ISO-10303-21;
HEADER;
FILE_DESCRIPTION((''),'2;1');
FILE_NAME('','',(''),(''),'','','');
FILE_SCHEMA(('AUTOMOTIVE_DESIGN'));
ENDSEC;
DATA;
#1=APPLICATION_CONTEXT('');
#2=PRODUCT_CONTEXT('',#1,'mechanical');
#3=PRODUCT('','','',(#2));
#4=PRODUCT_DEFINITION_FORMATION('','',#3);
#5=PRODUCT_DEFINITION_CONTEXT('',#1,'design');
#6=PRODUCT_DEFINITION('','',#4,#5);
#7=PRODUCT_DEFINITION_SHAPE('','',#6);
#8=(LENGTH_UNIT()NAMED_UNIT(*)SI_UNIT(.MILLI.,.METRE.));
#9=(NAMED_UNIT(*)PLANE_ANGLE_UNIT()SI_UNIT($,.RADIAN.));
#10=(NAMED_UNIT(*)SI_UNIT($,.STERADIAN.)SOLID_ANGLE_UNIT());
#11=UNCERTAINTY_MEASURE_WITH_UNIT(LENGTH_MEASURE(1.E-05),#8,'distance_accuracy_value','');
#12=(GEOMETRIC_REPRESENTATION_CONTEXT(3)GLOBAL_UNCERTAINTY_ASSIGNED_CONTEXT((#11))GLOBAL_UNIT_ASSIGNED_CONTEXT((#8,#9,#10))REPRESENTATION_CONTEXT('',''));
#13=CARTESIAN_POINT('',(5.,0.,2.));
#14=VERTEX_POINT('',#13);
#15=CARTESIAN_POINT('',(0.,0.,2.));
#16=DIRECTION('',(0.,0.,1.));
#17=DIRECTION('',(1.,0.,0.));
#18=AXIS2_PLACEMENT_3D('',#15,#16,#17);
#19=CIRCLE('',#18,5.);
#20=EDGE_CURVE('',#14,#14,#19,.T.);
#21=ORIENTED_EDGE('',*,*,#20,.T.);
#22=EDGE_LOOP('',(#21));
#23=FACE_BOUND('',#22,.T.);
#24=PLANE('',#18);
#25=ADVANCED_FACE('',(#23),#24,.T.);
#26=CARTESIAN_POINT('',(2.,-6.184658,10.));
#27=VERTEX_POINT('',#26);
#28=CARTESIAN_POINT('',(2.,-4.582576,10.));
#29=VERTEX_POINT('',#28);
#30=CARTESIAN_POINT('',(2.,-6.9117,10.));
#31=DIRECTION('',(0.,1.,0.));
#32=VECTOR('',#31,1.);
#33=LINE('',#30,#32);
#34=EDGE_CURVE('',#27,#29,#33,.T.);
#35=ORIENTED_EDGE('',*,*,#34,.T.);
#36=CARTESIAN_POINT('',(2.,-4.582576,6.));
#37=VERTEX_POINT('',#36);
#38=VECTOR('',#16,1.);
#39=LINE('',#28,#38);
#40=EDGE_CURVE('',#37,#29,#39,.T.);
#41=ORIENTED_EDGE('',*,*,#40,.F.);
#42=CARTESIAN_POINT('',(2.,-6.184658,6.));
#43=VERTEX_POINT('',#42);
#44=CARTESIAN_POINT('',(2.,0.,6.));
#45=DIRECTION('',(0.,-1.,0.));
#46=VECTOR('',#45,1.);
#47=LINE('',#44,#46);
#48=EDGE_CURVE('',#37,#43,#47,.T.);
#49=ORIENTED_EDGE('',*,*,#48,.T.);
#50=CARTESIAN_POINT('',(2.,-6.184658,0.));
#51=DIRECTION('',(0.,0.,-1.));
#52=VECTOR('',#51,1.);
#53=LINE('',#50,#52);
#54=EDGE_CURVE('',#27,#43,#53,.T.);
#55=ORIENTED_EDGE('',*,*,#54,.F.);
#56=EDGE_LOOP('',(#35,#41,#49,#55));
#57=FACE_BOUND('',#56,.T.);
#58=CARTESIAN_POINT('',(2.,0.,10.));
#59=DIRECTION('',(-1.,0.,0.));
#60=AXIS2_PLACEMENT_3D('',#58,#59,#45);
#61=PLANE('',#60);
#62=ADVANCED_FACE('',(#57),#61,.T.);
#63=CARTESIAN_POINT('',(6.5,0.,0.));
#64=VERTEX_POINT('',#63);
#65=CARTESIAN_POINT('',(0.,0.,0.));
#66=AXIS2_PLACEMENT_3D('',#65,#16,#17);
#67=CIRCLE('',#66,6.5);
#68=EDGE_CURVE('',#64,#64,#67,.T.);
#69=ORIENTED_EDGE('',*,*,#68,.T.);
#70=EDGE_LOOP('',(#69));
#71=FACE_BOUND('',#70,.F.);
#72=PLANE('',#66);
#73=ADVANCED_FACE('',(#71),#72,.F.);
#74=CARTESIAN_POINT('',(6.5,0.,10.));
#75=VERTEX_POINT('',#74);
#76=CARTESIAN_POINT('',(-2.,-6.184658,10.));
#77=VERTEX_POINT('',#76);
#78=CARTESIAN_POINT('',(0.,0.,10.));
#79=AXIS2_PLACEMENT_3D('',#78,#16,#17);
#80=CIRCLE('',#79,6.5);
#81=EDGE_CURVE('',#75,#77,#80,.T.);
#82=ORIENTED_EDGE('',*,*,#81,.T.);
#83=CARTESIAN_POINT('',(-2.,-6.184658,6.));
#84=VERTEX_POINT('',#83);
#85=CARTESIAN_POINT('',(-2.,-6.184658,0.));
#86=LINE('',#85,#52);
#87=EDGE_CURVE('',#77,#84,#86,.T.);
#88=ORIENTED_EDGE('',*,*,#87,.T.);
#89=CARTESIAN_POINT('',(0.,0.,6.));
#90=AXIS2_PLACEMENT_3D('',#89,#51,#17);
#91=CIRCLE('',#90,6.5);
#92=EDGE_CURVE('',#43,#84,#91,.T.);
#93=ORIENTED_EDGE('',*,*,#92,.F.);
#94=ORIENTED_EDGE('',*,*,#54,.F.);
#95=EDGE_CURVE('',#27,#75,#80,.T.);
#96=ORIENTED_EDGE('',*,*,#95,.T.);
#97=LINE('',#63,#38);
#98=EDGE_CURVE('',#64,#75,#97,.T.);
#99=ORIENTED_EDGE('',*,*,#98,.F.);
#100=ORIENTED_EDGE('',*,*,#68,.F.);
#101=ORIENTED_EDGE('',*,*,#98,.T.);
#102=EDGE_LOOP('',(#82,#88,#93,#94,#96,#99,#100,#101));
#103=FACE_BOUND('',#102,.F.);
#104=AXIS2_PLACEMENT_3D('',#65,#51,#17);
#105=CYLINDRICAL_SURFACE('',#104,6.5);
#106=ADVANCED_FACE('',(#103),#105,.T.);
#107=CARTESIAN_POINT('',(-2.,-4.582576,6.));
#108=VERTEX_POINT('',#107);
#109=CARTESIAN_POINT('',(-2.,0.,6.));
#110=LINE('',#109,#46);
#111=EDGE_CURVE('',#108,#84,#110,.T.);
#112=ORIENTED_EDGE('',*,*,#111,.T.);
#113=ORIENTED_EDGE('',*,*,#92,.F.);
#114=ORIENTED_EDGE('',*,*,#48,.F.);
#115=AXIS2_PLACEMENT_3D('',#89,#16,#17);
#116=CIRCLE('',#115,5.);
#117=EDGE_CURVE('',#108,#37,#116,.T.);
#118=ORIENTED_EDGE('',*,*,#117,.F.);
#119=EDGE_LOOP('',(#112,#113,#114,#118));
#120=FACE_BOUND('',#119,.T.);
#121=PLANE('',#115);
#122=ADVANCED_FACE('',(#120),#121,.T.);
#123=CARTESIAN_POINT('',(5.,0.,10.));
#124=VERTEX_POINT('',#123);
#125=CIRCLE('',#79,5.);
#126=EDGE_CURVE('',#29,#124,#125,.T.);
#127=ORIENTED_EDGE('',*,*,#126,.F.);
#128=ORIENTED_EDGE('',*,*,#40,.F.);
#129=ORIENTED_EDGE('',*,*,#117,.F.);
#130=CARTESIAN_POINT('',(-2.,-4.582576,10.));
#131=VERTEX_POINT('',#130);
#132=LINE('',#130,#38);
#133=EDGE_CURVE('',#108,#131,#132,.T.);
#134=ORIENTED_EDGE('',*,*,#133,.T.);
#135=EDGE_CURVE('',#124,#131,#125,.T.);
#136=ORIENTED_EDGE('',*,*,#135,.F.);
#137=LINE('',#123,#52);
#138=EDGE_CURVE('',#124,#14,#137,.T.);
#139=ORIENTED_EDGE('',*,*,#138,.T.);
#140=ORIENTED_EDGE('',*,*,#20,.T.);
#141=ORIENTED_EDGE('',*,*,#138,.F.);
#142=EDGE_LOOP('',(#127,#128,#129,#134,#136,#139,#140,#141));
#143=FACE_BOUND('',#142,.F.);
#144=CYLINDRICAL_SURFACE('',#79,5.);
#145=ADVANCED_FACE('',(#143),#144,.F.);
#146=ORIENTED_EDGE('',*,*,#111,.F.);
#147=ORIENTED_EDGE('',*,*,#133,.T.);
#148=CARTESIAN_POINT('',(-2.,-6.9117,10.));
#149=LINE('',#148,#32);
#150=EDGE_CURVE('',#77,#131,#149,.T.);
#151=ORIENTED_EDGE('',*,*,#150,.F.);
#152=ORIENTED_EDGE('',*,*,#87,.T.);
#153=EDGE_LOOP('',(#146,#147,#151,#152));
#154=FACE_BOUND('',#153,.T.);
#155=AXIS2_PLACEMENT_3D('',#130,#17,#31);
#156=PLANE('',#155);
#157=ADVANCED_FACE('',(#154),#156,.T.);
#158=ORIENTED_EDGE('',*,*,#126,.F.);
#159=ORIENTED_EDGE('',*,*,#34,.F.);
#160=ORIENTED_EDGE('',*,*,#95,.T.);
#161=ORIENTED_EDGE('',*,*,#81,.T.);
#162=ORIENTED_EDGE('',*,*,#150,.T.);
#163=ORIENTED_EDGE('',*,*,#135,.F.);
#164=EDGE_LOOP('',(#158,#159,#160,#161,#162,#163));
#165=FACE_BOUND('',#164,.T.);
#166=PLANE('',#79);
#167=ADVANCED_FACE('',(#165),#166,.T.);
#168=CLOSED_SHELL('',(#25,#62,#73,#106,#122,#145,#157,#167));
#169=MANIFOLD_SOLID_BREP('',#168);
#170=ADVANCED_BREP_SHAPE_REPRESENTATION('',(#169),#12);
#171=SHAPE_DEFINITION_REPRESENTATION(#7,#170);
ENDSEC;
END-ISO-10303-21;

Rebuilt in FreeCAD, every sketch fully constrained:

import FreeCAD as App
import Part
import Sketcher

V = App.Vector
Q = App.Units.Quantity


def add_polygon(sketch, points):
    """Adds a closed chain of lines whose ends are joined by coincident constraints."""
    first, n = sketch.GeometryCount, len(points)
    for a, b in zip(points, points[1:] + points[:1]):
        sketch.addGeometry(Part.LineSegment(App.Vector(*a, 0), App.Vector(*b, 0)), False)
    for i in range(n):
        sketch.addConstraint(Sketcher.Constraint("Coincident", first + i, 2, first + (i + 1) % n, 1))

doc = App.newDocument("Part")
params = doc.addObject("Spreadsheet::Sheet", "Params")
for row, (alias, value) in enumerate([
    ("sketch1_diameter", "13 mm"),
    ("pad1_length", "10 mm"),
    ("sketch2_diameter", "10 mm"),
    ("pocket1_length", "8 mm"),
    ("sketch3_width", "4 mm"),
    ("pocket2_length", "4 mm"),
], start=1):
    params.set(f"A{row}", alias)
    params.set(f"B{row}", "=" + value)
    params.setAlias(f"B{row}", alias)

body = doc.addObject("PartDesign::Body", "Body")

# Sketch on XY plane
sketch1 = body.newObject("Sketcher::SketchObject", "Sketch")
sketch1.AttachmentSupport = (doc.getObject("XY_Plane"), [""])
sketch1.MapMode = "FlatFace"
sketch1.addGeometry(Part.Circle(V(0, 0, 0), V(0, 0, 1), 6.5), False)
sketch1.addConstraint([
    Sketcher.Constraint("Coincident", 0, 3, -1, 1),
    Sketcher.Constraint("Diameter", 0, Q("13 mm")),
])
sketch1.setExpression("Constraints[1]", "Params.sketch1_diameter")
pad1 = body.newObject("PartDesign::Pad", "Pad")
pad1.Profile = sketch1
pad1.setExpression("Length", "Params.pad1_length")

# Sketch on XY plane
sketch2 = body.newObject("Sketcher::SketchObject", "Sketch001")
sketch2.AttachmentSupport = (doc.getObject("XY_Plane"), [""])
sketch2.MapMode = "FlatFace"
sketch2.AttachmentOffset = App.Placement(V(0, 0, 10), App.Rotation())
sketch2.addGeometry(Part.Circle(V(0, 0, 0), V(0, 0, 1), 5), False)
sketch2.addConstraint([
    Sketcher.Constraint("Coincident", 0, 3, -1, 1),
    Sketcher.Constraint("Diameter", 0, Q("10 mm")),
])
sketch2.setExpression("Constraints[1]", "Params.sketch2_diameter")
pocket1 = body.newObject("PartDesign::Pocket", "Pocket")
pocket1.Profile = sketch2
pocket1.setExpression("Length", "Params.pocket1_length")

# Sketch on XY plane
sketch3 = body.newObject("Sketcher::SketchObject", "Sketch002")
sketch3.AttachmentSupport = (doc.getObject("XY_Plane"), [""])
sketch3.MapMode = "FlatFace"
sketch3.AttachmentOffset = App.Placement(V(0, 0, 10), App.Rotation())
add_polygon(sketch3, [(-2, 0), (-2, -6.9117), (2, -6.9117), (2, 0)])  # lines 0-3
sketch3.addConstraint([
    Sketcher.Constraint("Vertical", 0),
    Sketcher.Constraint("Horizontal", 1),
    Sketcher.Constraint("Vertical", 2),
    Sketcher.Constraint("Horizontal", 3),
    Sketcher.Constraint("Symmetric", 2, 2, 3, 2, -1, 1),
    Sketcher.Constraint("DistanceX", 1, 1, 1, 2, Q("4 mm")),
    Sketcher.Constraint("DistanceY", 0, 2, 0, 1, Q("6.9117 mm")),
])
sketch3.setExpression("Constraints[9]", "Params.sketch3_width")
pocket2 = body.newObject("PartDesign::Pocket", "Pocket001")
pocket2.Profile = sketch3
pocket2.setExpression("Length", "Params.pocket2_length")

doc.recompute()
